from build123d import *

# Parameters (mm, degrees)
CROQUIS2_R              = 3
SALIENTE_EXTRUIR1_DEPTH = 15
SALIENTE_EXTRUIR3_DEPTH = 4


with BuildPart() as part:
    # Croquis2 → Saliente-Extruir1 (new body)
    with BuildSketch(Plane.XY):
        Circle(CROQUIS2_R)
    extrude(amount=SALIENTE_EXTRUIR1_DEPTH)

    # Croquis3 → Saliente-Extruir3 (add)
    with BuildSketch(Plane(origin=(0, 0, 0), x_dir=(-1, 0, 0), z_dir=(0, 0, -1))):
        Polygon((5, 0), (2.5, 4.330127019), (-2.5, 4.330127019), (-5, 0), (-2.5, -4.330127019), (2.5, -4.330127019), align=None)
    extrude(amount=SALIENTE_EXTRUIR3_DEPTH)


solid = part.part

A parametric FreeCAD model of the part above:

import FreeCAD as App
import Part
import Sketcher
from FreeCAD import Vector
Q = App.Units.Quantity


def add_polygon(sketch, points):
    """Adds a closed chain of lines whose ends are joined by coincident constraints."""
    first, n = sketch.GeometryCount, len(points)
    for a, b in zip(points, points[1:] + points[:1]):
        sketch.addGeometry(Part.LineSegment(App.Vector(*a, 0), App.Vector(*b, 0)), False)
    for i in range(n):
        sketch.addConstraint(Sketcher.Constraint("Coincident", first + i, 2, first + (i + 1) % n, 1))

doc = App.newDocument("Part")
body = doc.addObject("PartDesign::Body", "Body")

# Sketch on XY plane
sketch1 = body.newObject("Sketcher::SketchObject", "Sketch")
sketch1.AttachmentSupport = (doc.getObject("XY_Plane"), [""])
sketch1.MapMode = "FlatFace"
sketch1.addGeometry(Part.Circle(Vector(0, 0, 0), Vector(0, 0, 1), 3), False)
sketch1.addConstraint([
    Sketcher.Constraint("Coincident", 0, 3, -1, 1),
    Sketcher.Constraint("Diameter", 0, 6.0),
])
pad1 = body.newObject("PartDesign::Pad", "Pad")
pad1.Profile = sketch1
pad1.Length = 15

# Sketch on XY plane
sketch2 = body.newObject("Sketcher::SketchObject", "Sketch001")
sketch2.AttachmentSupport = (doc.getObject("XY_Plane"), [""])
sketch2.MapMode = "FlatFace"
add_polygon(sketch2, [(-5, 0), (-2, 4), (2, 4), (5, 0), (2, -4), (-2, -4)])  # lines 0-5
sketch2.addConstraint([
    Sketcher.Constraint("Horizontal", 1),
    Sketcher.Constraint("Horizontal", 4),
    Sketcher.Constraint("Symmetric", 0, 2, 3, 2, -1, 1),
    Sketcher.Constraint("Symmetric", 2, 2, 5, 2, -1, 1),
    Sketcher.Constraint("PointOnObject", 2, 2, -1),
    Sketcher.Constraint("Parallel", 2, 5),
    Sketcher.Constraint("Vertical", 1, 2, 3, 2),
    Sketcher.Constraint("DistanceX", 1, 1, 1, 2, 5.0),
    Sketcher.Constraint("Angle", 0, Q("60 deg")),
    Sketcher.Constraint("Distance", 0, 5.0),
])
pad2 = body.newObject("PartDesign::Pad", "Pad001")
pad2.Profile = sketch2
pad2.Length = 4
pad2.Reversed = True

doc.recompute()
